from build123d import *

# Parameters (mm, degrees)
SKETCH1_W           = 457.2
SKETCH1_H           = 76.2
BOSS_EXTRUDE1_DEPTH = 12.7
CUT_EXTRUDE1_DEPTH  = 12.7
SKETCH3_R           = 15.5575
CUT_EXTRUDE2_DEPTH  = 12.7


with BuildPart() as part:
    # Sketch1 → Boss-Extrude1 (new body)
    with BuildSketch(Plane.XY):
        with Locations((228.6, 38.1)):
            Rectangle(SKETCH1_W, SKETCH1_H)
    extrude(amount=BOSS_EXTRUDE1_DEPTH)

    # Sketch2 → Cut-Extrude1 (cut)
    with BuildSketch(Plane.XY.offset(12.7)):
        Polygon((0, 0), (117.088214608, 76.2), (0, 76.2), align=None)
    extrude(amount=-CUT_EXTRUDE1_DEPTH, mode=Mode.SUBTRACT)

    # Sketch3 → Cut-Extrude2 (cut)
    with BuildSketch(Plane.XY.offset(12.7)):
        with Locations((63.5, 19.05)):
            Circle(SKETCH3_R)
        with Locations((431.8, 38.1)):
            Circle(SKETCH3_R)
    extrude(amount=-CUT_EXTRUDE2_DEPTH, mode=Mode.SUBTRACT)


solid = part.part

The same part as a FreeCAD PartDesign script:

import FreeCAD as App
import Part
import Sketcher
Q = App.Units.Quantity


def add_polygon(sketch, points):
    """Adds a closed chain of lines whose ends are joined by coincident constraints."""
    first, n = sketch.GeometryCount, len(points)
    for a, b in zip(points, points[1:] + points[:1]):
        sketch.addGeometry(Part.LineSegment(App.Vector(*a, 0), App.Vector(*b, 0)), False)
    for i in range(n):
        sketch.addConstraint(Sketcher.Constraint("Coincident", first + i, 2, first + (i + 1) % n, 1))

doc = App.newDocument("Part")
body = doc.addObject("PartDesign::Body", "Body")

sketch1 = doc.addObject("Sketcher::SketchObject", "Sketch")
body.addObject(sketch1)
sketch1.AttachmentSupport = (doc.XY_Plane, [""])
sketch1.MapMode = "FlatFace"
add_polygon(sketch1, [(0, 76.2), (0, 0), (457.2, 0), (457.2, 76.2)])
sketch1.addConstraint([
    Sketcher.Constraint("Vertical", 0),
    Sketcher.Constraint("Horizontal", 1),
    Sketcher.Constraint("Vertical", 2),
    Sketcher.Constraint("Horizontal", 3),
    Sketcher.Constraint("Coincident", 0, 2, -1, 1),
    Sketcher.Constraint("DistanceX", 1, 1, 1, 2, Q("18 in")),
    Sketcher.Constraint("DistanceY", 0, 2, 0, 1, Q("3 in")),
])
pad1 = doc.addObject("PartDesign::Pad", "Pad")
body.addObject(pad1)
pad1.Profile = sketch1
pad1.Length = Q("0.5 in")

sketch2 = doc.addObject("Sketcher::SketchObject", "Sketch001")
body.addObject(sketch2)
sketch2.AttachmentSupport = (doc.XY_Plane, [""])
sketch2.MapMode = "FlatFace"
sketch2.AttachmentOffset = App.Placement(App.Vector(0, 0, 0.5 * 25.4), App.Rotation())
add_polygon(sketch2, [(0, 0), (117.088215, 76.2), (0, 76.2)])
sketch2.addConstraint([
    Sketcher.Constraint("Horizontal", 1),
    Sketcher.Constraint("Vertical", 2),
    Sketcher.Constraint("Coincident", 2, 2, -1, 1),
    Sketcher.Constraint("DistanceY", 2, 2, 2, 1, Q("3 in")),
    Sketcher.Constraint("Distance", 0, Q("5.5 in")),
])
pocket1 = doc.addObject("PartDesign::Pocket", "Pocket")
body.addObject(pocket1)
pocket1.Profile = sketch2
pocket1.Length = Q("0.5 in")

sketch3 = doc.addObject("Sketcher::SketchObject", "Sketch002")
body.addObject(sketch3)
sketch3.AttachmentSupport = (doc.XY_Plane, [""])
sketch3.MapMode = "FlatFace"
sketch3.AttachmentOffset = App.Placement(App.Vector(0, 0, 0.5 * 25.4), App.Rotation())
sketch3.addGeometry([
    Part.Circle(App.Vector(63.5, 19.05, 0), App.Vector(0, 0, 1), 15.5575),
    Part.Circle(App.Vector(431.8, 38.1, 0), App.Vector(0, 0, 1), 15.5575),
], False)
sketch3.addConstraint([
    Sketcher.Constraint("Equal", 0, 1),
    Sketcher.Constraint("Diameter", 0, Q("1.225 in")),
    Sketcher.Constraint("DistanceX", -1, 1, 1, 3, Q("17 in")),
    Sketcher.Constraint("DistanceX", -1, 1, 0, 3, Q("2.5 in")),
    Sketcher.Constraint("DistanceY", -1, 1, 1, 3, Q("1.5 in")),
    Sketcher.Constraint("DistanceY", -1, 1, 0, 3, Q("0.75 in")),
])
pocket2 = doc.addObject("PartDesign::Pocket", "Pocket001")
body.addObject(pocket2)
pocket2.Profile = sketch3
pocket2.Length = Q("0.5 in")

doc.recompute()
